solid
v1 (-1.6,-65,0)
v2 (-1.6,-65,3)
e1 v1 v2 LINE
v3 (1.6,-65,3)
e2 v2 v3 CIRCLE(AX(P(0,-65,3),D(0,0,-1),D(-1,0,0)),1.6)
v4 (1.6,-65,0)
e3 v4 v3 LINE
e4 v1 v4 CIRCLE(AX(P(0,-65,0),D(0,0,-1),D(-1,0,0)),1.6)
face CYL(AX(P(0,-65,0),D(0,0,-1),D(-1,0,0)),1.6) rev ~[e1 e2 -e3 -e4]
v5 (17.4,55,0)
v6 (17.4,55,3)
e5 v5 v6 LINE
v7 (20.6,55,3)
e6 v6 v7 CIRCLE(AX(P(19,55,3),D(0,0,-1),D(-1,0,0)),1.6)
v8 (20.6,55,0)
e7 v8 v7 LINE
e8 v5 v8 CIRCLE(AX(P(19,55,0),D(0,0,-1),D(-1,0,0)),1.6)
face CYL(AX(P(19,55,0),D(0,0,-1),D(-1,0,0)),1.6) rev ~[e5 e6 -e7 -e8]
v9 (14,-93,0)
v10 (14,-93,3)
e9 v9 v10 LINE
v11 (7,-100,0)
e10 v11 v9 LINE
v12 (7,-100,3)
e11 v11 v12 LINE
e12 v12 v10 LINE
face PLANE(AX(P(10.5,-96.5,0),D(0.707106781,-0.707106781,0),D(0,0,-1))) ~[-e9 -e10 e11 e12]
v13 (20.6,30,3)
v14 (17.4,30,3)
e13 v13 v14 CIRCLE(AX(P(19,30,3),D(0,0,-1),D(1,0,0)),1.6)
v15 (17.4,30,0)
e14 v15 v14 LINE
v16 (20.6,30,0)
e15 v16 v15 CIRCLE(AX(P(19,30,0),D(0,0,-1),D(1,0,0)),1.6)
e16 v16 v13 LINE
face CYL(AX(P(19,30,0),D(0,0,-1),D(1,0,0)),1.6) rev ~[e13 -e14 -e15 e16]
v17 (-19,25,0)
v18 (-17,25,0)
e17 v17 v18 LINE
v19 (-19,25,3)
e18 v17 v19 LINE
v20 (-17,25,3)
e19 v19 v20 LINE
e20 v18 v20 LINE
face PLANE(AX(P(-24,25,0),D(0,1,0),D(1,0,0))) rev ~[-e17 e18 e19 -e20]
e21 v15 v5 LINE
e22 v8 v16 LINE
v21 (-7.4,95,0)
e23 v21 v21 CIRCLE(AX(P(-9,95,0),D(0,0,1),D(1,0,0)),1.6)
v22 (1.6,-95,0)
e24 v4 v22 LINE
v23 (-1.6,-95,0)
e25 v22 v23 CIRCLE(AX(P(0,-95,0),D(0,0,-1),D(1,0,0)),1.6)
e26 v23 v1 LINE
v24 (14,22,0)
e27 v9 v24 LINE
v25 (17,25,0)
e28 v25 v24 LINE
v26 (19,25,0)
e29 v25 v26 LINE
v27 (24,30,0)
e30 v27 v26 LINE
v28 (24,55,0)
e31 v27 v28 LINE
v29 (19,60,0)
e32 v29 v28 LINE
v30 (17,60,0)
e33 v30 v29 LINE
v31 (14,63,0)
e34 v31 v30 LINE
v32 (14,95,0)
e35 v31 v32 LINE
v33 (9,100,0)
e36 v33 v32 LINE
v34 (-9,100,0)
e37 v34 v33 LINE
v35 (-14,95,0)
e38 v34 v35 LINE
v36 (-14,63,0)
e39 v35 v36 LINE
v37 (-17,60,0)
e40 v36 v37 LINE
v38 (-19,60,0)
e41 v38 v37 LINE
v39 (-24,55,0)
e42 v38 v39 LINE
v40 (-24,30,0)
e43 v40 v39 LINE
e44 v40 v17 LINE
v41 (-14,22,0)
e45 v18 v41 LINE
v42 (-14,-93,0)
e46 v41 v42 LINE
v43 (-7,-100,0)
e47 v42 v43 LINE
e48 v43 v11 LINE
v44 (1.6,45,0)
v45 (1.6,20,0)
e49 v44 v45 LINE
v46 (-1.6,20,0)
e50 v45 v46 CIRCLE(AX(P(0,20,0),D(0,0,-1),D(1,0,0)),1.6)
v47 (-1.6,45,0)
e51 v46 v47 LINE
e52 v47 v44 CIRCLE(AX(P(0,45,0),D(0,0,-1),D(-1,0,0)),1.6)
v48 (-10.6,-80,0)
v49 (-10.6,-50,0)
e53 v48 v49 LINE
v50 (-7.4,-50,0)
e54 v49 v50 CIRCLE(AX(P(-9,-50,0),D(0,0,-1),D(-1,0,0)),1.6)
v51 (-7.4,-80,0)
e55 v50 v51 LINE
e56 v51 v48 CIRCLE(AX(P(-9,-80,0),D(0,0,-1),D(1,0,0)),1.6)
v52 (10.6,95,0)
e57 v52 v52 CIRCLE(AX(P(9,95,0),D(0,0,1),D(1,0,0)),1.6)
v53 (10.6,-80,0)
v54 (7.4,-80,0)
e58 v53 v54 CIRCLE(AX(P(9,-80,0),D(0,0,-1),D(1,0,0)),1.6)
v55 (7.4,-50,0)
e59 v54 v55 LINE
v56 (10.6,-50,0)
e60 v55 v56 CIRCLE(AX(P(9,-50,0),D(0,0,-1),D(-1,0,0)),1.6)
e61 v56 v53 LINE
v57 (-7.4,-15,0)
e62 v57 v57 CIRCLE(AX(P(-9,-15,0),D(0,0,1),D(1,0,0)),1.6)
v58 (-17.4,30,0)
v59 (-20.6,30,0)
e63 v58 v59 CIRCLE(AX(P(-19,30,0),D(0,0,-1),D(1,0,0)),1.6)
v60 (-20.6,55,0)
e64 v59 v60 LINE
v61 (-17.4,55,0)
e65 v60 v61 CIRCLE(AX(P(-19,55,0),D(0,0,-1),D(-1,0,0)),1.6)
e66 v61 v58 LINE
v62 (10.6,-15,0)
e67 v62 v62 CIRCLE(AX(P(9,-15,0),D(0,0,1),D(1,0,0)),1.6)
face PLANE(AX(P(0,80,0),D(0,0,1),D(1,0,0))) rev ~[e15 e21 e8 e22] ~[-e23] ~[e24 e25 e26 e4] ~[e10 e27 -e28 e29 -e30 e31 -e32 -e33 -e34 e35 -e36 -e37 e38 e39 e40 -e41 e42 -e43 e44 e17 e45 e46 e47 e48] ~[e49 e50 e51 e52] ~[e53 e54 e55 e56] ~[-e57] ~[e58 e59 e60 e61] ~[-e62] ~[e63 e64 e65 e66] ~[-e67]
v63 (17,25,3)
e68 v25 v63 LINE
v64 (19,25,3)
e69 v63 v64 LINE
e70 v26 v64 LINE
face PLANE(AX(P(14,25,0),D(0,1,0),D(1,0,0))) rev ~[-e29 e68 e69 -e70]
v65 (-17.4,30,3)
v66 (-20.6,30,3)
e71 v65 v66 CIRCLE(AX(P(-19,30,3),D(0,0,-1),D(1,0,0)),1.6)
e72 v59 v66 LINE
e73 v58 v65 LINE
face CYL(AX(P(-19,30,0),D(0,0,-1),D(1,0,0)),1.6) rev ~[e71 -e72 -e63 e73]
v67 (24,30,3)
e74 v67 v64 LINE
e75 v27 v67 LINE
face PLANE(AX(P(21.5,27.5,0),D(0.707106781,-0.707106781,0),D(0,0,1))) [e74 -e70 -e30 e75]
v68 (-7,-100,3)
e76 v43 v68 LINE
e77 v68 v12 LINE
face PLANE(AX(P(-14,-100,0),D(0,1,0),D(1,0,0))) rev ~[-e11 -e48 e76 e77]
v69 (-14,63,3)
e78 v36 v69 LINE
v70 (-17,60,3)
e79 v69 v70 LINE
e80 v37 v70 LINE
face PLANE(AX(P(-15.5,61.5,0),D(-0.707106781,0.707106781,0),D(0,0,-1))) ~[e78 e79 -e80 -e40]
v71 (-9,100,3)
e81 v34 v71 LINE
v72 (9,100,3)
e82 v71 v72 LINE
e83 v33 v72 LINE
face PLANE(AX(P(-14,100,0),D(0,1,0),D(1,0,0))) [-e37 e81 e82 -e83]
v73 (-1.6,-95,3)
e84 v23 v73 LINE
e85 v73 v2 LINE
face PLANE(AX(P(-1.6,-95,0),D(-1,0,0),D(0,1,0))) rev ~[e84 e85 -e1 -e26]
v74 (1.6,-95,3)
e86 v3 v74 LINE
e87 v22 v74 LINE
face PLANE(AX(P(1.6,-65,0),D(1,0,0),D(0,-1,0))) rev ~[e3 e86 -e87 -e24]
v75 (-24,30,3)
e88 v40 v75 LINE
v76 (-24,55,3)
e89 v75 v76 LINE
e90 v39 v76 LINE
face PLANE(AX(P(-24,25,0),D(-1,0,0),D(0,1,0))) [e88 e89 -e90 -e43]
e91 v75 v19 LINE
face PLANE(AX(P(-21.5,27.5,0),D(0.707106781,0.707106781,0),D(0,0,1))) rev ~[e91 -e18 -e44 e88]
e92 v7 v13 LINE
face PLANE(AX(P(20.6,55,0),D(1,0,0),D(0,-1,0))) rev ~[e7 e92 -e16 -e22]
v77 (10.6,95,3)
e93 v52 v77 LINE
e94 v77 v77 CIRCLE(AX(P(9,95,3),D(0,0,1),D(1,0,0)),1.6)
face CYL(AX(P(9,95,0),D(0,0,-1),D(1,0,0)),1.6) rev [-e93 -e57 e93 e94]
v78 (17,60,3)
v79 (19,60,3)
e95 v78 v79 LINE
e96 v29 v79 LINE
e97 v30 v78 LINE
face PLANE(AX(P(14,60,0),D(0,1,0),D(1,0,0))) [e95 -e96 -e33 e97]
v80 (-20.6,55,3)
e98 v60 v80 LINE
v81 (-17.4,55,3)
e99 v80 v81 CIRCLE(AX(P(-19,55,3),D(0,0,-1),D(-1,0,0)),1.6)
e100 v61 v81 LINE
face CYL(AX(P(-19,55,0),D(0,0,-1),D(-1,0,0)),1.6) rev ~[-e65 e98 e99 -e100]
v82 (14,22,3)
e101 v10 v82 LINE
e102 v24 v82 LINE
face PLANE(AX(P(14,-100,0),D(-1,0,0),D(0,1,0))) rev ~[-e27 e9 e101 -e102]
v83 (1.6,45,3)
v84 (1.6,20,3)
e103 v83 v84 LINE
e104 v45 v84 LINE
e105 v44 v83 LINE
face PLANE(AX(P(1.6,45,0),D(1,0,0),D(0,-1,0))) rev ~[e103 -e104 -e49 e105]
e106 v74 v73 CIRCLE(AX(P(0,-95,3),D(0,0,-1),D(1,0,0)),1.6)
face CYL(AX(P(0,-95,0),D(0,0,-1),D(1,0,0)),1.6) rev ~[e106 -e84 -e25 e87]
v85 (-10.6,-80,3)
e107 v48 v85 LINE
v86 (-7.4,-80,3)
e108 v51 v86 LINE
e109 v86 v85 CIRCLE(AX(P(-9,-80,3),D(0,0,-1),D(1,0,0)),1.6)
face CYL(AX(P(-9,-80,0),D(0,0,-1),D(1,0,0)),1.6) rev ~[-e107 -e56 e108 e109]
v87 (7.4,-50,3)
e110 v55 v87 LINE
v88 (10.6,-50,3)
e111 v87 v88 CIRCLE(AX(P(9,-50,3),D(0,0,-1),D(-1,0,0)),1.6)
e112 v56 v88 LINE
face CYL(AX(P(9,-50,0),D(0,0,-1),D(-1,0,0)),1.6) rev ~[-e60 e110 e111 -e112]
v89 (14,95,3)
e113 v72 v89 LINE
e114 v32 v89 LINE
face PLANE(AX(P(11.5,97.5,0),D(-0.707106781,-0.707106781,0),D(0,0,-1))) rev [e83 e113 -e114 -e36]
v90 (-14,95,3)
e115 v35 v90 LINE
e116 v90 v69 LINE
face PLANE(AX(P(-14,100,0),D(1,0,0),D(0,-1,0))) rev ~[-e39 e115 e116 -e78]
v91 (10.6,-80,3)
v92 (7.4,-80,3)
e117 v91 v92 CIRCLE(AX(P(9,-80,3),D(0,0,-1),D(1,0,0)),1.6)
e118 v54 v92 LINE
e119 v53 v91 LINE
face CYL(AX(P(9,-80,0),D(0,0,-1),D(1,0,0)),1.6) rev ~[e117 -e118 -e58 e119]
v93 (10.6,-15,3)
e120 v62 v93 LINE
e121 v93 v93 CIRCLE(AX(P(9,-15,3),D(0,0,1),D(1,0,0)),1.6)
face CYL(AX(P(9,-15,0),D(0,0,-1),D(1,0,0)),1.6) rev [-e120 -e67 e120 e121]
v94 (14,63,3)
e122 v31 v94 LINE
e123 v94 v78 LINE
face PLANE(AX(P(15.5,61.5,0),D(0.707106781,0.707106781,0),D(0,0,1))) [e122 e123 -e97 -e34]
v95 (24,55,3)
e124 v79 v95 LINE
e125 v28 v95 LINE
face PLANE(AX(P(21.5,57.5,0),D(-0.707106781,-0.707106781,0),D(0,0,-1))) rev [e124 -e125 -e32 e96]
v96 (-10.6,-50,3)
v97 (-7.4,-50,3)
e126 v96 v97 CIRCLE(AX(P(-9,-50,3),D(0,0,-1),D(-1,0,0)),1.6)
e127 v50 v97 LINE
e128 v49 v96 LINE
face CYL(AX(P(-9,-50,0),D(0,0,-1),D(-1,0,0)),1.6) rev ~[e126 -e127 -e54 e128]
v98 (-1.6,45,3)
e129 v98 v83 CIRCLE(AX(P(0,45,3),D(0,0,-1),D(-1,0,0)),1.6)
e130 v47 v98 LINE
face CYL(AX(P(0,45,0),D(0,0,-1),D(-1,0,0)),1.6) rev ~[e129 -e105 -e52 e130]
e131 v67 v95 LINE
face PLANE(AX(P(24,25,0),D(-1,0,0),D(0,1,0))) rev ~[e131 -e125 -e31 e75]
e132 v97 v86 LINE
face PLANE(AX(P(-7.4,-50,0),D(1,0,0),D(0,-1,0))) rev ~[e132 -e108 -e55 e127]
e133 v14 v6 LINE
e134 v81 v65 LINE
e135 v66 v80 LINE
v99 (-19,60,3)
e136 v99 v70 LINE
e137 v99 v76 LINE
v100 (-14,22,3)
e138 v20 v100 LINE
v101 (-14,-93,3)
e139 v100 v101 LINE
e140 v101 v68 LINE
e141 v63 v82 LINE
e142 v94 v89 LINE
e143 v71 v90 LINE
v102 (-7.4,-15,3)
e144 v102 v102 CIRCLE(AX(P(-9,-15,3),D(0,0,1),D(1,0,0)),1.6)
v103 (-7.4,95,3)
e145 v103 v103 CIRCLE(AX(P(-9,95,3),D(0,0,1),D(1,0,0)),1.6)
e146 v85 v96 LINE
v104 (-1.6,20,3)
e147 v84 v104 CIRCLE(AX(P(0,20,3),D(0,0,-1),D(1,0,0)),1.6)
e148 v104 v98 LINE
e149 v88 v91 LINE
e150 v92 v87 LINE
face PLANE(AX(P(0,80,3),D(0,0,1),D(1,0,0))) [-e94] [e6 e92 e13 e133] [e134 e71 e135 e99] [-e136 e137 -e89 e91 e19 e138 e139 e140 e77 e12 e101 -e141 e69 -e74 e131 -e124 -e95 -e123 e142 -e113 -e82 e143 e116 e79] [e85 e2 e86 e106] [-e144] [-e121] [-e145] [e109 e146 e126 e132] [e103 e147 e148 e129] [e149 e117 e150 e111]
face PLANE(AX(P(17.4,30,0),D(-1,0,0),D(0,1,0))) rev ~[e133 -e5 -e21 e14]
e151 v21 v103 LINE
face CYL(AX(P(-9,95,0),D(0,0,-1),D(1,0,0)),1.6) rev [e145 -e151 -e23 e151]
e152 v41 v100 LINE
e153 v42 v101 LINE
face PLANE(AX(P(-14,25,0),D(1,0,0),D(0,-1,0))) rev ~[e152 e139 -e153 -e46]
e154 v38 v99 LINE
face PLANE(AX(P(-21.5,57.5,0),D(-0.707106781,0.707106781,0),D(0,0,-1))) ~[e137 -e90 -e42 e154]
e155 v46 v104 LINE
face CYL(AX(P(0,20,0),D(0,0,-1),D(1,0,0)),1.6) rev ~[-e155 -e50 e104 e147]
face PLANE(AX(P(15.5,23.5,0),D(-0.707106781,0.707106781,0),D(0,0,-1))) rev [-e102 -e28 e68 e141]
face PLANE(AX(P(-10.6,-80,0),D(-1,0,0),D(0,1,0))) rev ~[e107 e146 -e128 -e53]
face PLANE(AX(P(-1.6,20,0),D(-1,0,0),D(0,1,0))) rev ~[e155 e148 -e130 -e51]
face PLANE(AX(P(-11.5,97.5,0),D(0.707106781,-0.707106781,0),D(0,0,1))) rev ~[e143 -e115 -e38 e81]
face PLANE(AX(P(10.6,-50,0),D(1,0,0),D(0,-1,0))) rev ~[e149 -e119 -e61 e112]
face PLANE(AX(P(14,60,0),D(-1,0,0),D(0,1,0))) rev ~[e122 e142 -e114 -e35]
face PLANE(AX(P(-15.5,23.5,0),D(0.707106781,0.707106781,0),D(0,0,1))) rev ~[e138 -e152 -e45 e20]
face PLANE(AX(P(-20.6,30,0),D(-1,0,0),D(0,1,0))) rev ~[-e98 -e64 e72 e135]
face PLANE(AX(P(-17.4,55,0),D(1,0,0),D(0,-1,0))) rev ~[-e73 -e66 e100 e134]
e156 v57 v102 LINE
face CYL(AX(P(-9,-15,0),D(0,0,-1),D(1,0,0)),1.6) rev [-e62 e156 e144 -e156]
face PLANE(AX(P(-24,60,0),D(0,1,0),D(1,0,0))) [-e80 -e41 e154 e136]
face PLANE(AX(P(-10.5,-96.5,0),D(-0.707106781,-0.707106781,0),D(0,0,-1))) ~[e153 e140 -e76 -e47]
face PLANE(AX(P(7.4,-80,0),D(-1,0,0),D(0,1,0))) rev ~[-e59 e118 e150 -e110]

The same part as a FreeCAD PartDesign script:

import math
import FreeCAD as App
import Part
import Sketcher
Q = App.Units.Quantity


def edges_at(feature, points):
    """Names of the edges that pass closest to the given points."""
    edges = feature.Shape.Edges
    near = lambda p: min(range(len(edges)), key=lambda i: edges[i].distToShape(Part.Vertex(*p))[0])
    return sorted({f"Edge{near(p) + 1}" for p in points})

doc = App.newDocument("Part")
body = doc.addObject("PartDesign::Body", "Body")

sketch1 = body.newObject("Sketcher::SketchObject", "Sketch")
sketch1.AttachmentSupport = (doc.getObject("XY_Plane"), [""])
sketch1.MapMode = "FlatFace"
sketch1.addGeometry([
    Part.LineSegment(App.Vector(14, 100, 0), App.Vector(-14, 100, 0)),
    Part.LineSegment(App.Vector(-14, 100, 0), App.Vector(-14, 60, 0)),
    Part.LineSegment(App.Vector(-14, 60, 0), App.Vector(-24, 60, 0)),
    Part.LineSegment(App.Vector(-24, 60, 0), App.Vector(-24, 25, 0)),
    Part.LineSegment(App.Vector(-24, 25, 0), App.Vector(-14, 25, 0)),
    Part.LineSegment(App.Vector(-14, 25, 0), App.Vector(-14, -100, 0)),
    Part.LineSegment(App.Vector(-14, -100, 0), App.Vector(14, -100, 0)),
    Part.LineSegment(App.Vector(14, -100, 0), App.Vector(14, 25, 0)),
    Part.LineSegment(App.Vector(14, 25, 0), App.Vector(24, 25, 0)),
    Part.LineSegment(App.Vector(24, 25, 0), App.Vector(24, 60, 0)),
    Part.LineSegment(App.Vector(24, 60, 0), App.Vector(14, 60, 0)),
    Part.LineSegment(App.Vector(14, 60, 0), App.Vector(14, 100, 0)),
    Part.LineSegment(App.Vector(-10.6, -80, 0), App.Vector(-10.6, -50, 0)),
    Part.ArcOfCircle(Part.Circle(App.Vector(-9, -50, 0), App.Vector(0, 0, 1), 1.6), math.radians(0), math.radians(180)),
    Part.LineSegment(App.Vector(-7.4, -50, 0), App.Vector(-7.4, -80, 0)),
    Part.ArcOfCircle(Part.Circle(App.Vector(-9, -80, 0), App.Vector(0, 0, 1), 1.6), math.radians(180), math.radians(360)),
    Part.Circle(App.Vector(-9, -15, 0), App.Vector(0, 0, 1), 1.6),
    Part.ArcOfCircle(Part.Circle(App.Vector(0, -65, 0), App.Vector(0, 0, 1), 1.6), math.radians(0), math.radians(180)),
    Part.LineSegment(App.Vector(1.6, -65, 0), App.Vector(1.6, -95, 0)),
    Part.ArcOfCircle(Part.Circle(App.Vector(0, -95, 0), App.Vector(0, 0, 1), 1.6), math.radians(180), math.radians(360)),
    Part.LineSegment(App.Vector(-1.6, -95, 0), App.Vector(-1.6, -65, 0)),
    Part.ArcOfCircle(Part.Circle(App.Vector(9, -50, 0), App.Vector(0, 0, 1), 1.6), math.radians(0), math.radians(180)),
    Part.LineSegment(App.Vector(10.6, -50, 0), App.Vector(10.6, -80, 0)),
    Part.ArcOfCircle(Part.Circle(App.Vector(9, -80, 0), App.Vector(0, 0, 1), 1.6), math.radians(180), math.radians(360)),
    Part.LineSegment(App.Vector(7.4, -80, 0), App.Vector(7.4, -50, 0)),
    Part.Circle(App.Vector(9, -15, 0), App.Vector(0, 0, 1), 1.6),
    Part.LineSegment(App.Vector(-20.6, 30, 0), App.Vector(-20.6, 55, 0)),
    Part.ArcOfCircle(Part.Circle(App.Vector(-19, 55, 0), App.Vector(0, 0, 1), 1.6), math.radians(0), math.radians(180)),
    Part.LineSegment(App.Vector(-17.4, 55, 0), App.Vector(-17.4, 30, 0)),
    Part.ArcOfCircle(Part.Circle(App.Vector(-19, 30, 0), App.Vector(0, 0, 1), 1.6), math.radians(180), math.radians(360)),
    Part.Circle(App.Vector(-9, 95, 0), App.Vector(0, 0, 1), 1.6),
    Part.LineSegment(App.Vector(1.6, 45, 0), App.Vector(1.6, 20, 0)),
    Part.ArcOfCircle(Part.Circle(App.Vector(0, 20, 0), App.Vector(0, 0, 1), 1.6), math.radians(180), math.radians(360)),
    Part.LineSegment(App.Vector(-1.6, 20, 0), App.Vector(-1.6, 45, 0)),
    Part.ArcOfCircle(Part.Circle(App.Vector(0, 45, 0), App.Vector(0, 0, 1), 1.6), math.radians(0), math.radians(180)),
    Part.ArcOfCircle(Part.Circle(App.Vector(19, 55, 0), App.Vector(0, 0, 1), 1.6), math.radians(0), math.radians(180)),
    Part.LineSegment(App.Vector(20.6, 55, 0), App.Vector(20.6, 30, 0)),
    Part.ArcOfCircle(Part.Circle(App.Vector(19, 30, 0), App.Vector(0, 0, 1), 1.6), math.radians(180), math.radians(360)),
    Part.LineSegment(App.Vector(17.4, 30, 0), App.Vector(17.4, 55, 0)),
    Part.Circle(App.Vector(9, 95, 0), App.Vector(0, 0, 1), 1.6),
], False)
sketch1.addConstraint([
    Sketcher.Constraint("Coincident", 0, 2, 1, 1),
    Sketcher.Constraint("Coincident", 1, 2, 2, 1),
    Sketcher.Constraint("Coincident", 2, 2, 3, 1),
    Sketcher.Constraint("Coincident", 3, 2, 4, 1),
    Sketcher.Constraint("Coincident", 4, 2, 5, 1),
    Sketcher.Constraint("Coincident", 5, 2, 6, 1),
    Sketcher.Constraint("Coincident", 6, 2, 7, 1),
    Sketcher.Constraint("Coincident", 7, 2, 8, 1),
    Sketcher.Constraint("Coincident", 8, 2, 9, 1),
    Sketcher.Constraint("Coincident", 9, 2, 10, 1),
    Sketcher.Constraint("Coincident", 10, 2, 11, 1),
    Sketcher.Constraint("Coincident", 11, 2, 0, 1),
    Sketcher.Constraint("Tangent", 12, 2, 13, 2),
    Sketcher.Constraint("Tangent", 13, 1, 14, 1),
    Sketcher.Constraint("Tangent", 14, 2, 15, 2),
    Sketcher.Constraint("Tangent", 15, 1, 12, 1),
    Sketcher.Constraint("Tangent", 17, 1, 18, 1),
    Sketcher.Constraint("Tangent", 18, 2, 19, 2),
    Sketcher.Constraint("Tangent", 19, 1, 20, 1),
    Sketcher.Constraint("Tangent", 20, 2, 17, 2),
    Sketcher.Constraint("Tangent", 21, 1, 22, 1),
    Sketcher.Constraint("Tangent", 22, 2, 23, 2),
    Sketcher.Constraint("Tangent", 23, 1, 24, 1),
    Sketcher.Constraint("Tangent", 24, 2, 21, 2),
    Sketcher.Constraint("Tangent", 26, 2, 27, 2),
    Sketcher.Constraint("Tangent", 27, 1, 28, 1),
    Sketcher.Constraint("Tangent", 28, 2, 29, 2),
    Sketcher.Constraint("Tangent", 29, 1, 26, 1),
    Sketcher.Constraint("Tangent", 31, 2, 32, 2),
    Sketcher.Constraint("Tangent", 32, 1, 33, 1),
    Sketcher.Constraint("Tangent", 33, 2, 34, 2),
    Sketcher.Constraint("Tangent", 34, 1, 31, 1),
    Sketcher.Constraint("Tangent", 35, 1, 36, 1),
    Sketcher.Constraint("Tangent", 36, 2, 37, 2),
    Sketcher.Constraint("Tangent", 37, 1, 38, 1),
    Sketcher.Constraint("Tangent", 38, 2, 35, 2),
    Sketcher.Constraint("Horizontal", 0),
    Sketcher.Constraint("Vertical", 1),
    Sketcher.Constraint("Horizontal", 2),
    Sketcher.Constraint("Vertical", 3),
    Sketcher.Constraint("Horizontal", 4),
    Sketcher.Constraint("Vertical", 5),
    Sketcher.Constraint("Horizontal", 6),
    Sketcher.Constraint("Vertical", 7),
    Sketcher.Constraint("Horizontal", 8),
    Sketcher.Constraint("Vertical", 9),
    Sketcher.Constraint("Horizontal", 10),
    Sketcher.Constraint("Vertical", 11),
    Sketcher.Constraint("Vertical", 12),
    Sketcher.Constraint("Vertical", 14),
    Sketcher.Constraint("Vertical", 18),
    Sketcher.Constraint("Vertical", 20),
    Sketcher.Constraint("Vertical", 22),
    Sketcher.Constraint("Vertical", 24),
    Sketcher.Constraint("Vertical", 26),
    Sketcher.Constraint("Vertical", 28),
    Sketcher.Constraint("Vertical", 31),
    Sketcher.Constraint("Vertical", 33),
    Sketcher.Constraint("Vertical", 36),
    Sketcher.Constraint("Vertical", 38),
    Sketcher.Constraint("Equal", 15, 16),
    Sketcher.Constraint("Equal", 16, 17),
    Sketcher.Constraint("Equal", 19, 21),
    Sketcher.Constraint("Equal", 23, 25),
    Sketcher.Constraint("Equal", 25, 27),
    Sketcher.Constraint("Equal", 29, 30),
    Sketcher.Constraint("Equal", 30, 32),
    Sketcher.Constraint("Equal", 34, 35),
    Sketcher.Constraint("Equal", 37, 39),
    Sketcher.Constraint("Symmetric", 0, 2, 6, 2, -1, 1),
    Sketcher.Constraint("Symmetric", 13, 3, 21, 3, -2),
    Sketcher.Constraint("Symmetric", 16, 3, 25, 3, -2),
    Sketcher.Constraint("Symmetric", 27, 3, 35, 3, -2),
    Sketcher.Constraint("Symmetric", 30, 3, 39, 3, -2),
    Sketcher.Constraint("Symmetric", 4, 2, 7, 2, -2),
    Sketcher.Constraint("Symmetric", 2, 2, 9, 2, -2),
    Sketcher.Constraint("PointOnObject", 17, 3, -2),
    Sketcher.Constraint("PointOnObject", 32, 3, -2),
    Sketcher.Constraint("Horizontal", 15, 3, 23, 3),
    Sketcher.Constraint("Horizontal", 29, 3, 37, 3),
    Sketcher.Constraint("Vertical", 15, 3, 16, 3),
    Sketcher.Constraint("Vertical", 16, 3, 30, 3),
    Sketcher.Constraint("Vertical", 7, 2, 10, 2),
    Sketcher.Constraint("Equal", 14, 18),
    Sketcher.Constraint("Equal", 28, 31),
    Sketcher.Constraint("Diameter", 16, Q("3.2 mm")),
    Sketcher.Constraint("DistanceX", 0, 2, 0, 1, Q("28 mm")),
    Sketcher.Constraint("DistanceX", 2, 2, 2, 1, Q("10 mm")),
    Sketcher.Constraint("DistanceY", 1, 2, 1, 1, Q("40 mm")),
    Sketcher.Constraint("DistanceY", 3, 2, 3, 1, Q("35 mm")),
    Sketcher.Constraint("DistanceY", 5, 2, 5, 1, Q("125 mm")),
    Sketcher.Constraint("DistanceY", 12, 1, 12, 2, Q("30 mm")),
    Sketcher.Constraint("DistanceY", 26, 1, 26, 2, Q("25 mm")),
    Sketcher.Constraint("DistanceX", 13, 3, -1, 1, Q("9 mm")),
    Sketcher.Constraint("DistanceY", 13, 3, -1, 1, Q("50 mm")),
    Sketcher.Constraint("DistanceY", 16, 3, -1, 1, Q("15 mm")),
    Sketcher.Constraint("DistanceY", 17, 3, -1, 1, Q("65 mm")),
    Sketcher.Constraint("DistanceX", 27, 3, -1, 1, Q("19 mm")),
    Sketcher.Constraint("DistanceY", -1, 1, 27, 3, Q("55 mm")),
    Sketcher.Constraint("DistanceY", -1, 1, 30, 3, Q("95 mm")),
    Sketcher.Constraint("DistanceY", -1, 1, 32, 3, Q("20 mm")),
])
pad1 = body.newObject("PartDesign::Pad", "Pad")
pad1.Profile = sketch1
pad1.Length = 3
doc.recompute()

chamfer = body.newObject("PartDesign::Chamfer", "Chamfer")
chamfer.Base = (pad1, edges_at(pad1, [
    (-14, 100, 1.5),
    (14, 100, 1.5),
    (-24, 60, 1.5),
    (24, 60, 1.5),
    (-24, 25, 1.5),
    (24, 25, 1.5),
]))
chamfer.Size = 5
doc.recompute()

chamfer2 = body.newObject("PartDesign::Chamfer", "Chamfer001")
chamfer2.Base = (chamfer, edges_at(chamfer, [
    (14, 25, 1.5),
    (-14, 25, 1.5),
    (-14, 60, 1.5),
    (14, 60, 1.5),
]))
chamfer2.Size = 3
doc.recompute()

chamfer3 = body.newObject("PartDesign::Chamfer", "Chamfer002")
chamfer3.Base = (chamfer2, edges_at(chamfer2, [(14, -100, 1.5), (-14, -100, 1.5)]))
chamfer3.Size = 7

doc.recompute()
